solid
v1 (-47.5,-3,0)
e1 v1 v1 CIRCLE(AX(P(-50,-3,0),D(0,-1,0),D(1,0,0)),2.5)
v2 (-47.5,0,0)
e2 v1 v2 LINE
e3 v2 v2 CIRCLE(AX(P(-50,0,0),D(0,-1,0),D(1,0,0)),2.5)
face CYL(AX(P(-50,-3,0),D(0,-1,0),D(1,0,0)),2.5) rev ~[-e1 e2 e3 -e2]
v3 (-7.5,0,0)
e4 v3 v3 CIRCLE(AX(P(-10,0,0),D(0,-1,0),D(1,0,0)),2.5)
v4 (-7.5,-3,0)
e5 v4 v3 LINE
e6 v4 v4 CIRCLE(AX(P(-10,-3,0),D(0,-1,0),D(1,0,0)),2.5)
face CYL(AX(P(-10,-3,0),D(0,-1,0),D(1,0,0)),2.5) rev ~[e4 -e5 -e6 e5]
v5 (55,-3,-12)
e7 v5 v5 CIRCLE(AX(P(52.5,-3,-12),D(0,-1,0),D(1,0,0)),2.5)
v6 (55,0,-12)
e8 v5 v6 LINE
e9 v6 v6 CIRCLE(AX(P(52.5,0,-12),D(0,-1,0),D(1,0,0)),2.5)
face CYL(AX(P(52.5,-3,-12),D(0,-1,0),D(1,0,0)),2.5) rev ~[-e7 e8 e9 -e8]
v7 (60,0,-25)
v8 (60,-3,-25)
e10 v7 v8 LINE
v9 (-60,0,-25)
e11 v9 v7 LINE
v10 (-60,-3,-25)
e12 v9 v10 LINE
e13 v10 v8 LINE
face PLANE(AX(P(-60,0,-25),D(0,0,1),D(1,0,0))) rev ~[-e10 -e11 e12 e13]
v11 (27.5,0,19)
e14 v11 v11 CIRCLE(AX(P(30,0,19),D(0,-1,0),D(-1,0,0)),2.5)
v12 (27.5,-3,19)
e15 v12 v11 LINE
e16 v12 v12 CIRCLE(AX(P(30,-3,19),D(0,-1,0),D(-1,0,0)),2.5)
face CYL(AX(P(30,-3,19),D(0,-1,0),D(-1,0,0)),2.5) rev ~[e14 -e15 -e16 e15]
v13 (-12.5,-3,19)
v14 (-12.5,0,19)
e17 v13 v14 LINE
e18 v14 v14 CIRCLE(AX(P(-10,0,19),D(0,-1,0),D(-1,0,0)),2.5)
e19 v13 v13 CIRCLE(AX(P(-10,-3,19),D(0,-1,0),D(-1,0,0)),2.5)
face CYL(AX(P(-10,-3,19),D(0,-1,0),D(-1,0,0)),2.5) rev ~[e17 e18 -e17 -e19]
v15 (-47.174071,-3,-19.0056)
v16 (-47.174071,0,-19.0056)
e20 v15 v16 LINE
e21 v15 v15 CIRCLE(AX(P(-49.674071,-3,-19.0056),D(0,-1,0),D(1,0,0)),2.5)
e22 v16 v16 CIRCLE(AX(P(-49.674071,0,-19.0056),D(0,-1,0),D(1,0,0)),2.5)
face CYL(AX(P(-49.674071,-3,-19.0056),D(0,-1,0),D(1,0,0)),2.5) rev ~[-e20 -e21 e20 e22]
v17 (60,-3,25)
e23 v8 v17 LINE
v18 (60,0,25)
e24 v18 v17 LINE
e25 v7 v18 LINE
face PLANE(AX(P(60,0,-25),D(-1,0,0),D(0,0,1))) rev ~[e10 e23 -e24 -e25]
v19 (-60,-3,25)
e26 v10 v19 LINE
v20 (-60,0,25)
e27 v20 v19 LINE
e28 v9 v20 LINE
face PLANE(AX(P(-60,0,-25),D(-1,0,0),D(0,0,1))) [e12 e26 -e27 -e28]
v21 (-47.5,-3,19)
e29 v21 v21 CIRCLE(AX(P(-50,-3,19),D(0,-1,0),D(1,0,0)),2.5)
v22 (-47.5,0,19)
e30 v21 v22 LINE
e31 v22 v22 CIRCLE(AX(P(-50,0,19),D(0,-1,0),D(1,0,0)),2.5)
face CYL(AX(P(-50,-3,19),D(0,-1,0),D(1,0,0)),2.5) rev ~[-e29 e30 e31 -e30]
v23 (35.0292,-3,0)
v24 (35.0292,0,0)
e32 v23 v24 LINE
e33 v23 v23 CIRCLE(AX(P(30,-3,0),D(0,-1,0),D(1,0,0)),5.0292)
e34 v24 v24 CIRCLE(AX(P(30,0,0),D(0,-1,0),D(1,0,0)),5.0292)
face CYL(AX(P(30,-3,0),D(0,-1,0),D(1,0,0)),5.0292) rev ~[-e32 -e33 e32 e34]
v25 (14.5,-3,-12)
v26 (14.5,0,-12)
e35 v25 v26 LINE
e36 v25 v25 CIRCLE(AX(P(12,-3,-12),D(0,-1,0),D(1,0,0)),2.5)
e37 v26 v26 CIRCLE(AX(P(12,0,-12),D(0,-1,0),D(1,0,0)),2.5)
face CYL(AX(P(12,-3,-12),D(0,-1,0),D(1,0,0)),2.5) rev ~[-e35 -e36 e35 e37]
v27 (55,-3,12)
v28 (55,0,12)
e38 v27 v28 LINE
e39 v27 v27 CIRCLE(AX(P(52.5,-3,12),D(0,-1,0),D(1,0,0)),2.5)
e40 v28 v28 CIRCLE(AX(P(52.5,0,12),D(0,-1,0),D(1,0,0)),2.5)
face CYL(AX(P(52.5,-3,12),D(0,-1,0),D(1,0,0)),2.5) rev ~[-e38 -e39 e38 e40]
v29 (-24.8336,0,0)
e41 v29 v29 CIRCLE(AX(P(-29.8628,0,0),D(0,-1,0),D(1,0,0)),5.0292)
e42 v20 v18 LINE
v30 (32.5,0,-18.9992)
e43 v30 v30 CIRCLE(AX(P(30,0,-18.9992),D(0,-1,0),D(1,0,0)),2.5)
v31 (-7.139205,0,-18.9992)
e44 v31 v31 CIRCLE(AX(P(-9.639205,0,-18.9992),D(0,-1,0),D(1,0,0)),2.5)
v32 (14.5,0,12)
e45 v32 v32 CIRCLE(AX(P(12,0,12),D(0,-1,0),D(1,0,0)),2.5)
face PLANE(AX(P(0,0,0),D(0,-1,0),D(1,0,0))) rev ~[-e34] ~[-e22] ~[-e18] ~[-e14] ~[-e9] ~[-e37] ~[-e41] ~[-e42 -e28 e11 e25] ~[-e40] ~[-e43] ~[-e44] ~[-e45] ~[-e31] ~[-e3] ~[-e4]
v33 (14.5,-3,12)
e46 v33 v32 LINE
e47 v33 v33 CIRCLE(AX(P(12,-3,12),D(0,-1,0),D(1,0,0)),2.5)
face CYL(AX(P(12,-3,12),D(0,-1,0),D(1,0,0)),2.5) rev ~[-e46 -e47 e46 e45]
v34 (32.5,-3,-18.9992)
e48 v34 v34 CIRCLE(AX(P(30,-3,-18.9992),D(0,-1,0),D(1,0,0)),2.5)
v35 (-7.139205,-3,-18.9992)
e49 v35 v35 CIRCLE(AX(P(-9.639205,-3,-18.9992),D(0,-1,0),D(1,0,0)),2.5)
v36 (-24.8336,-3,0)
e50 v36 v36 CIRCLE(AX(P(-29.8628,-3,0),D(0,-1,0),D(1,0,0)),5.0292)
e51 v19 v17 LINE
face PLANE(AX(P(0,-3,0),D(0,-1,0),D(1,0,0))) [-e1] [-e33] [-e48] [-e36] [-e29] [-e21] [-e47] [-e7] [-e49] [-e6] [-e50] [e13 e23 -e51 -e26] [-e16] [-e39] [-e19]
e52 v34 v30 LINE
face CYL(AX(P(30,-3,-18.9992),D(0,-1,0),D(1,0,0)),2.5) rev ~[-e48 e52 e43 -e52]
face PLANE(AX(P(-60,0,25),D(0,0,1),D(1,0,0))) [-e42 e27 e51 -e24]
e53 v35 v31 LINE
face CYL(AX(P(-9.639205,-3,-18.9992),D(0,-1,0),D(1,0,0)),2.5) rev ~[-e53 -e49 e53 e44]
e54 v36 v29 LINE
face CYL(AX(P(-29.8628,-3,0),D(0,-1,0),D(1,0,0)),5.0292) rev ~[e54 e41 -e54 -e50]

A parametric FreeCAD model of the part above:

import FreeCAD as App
import Part
import Sketcher

V = App.Vector


def add_polygon(sketch, points):
    """Adds a closed chain of lines whose ends are joined by coincident constraints."""
    first, n = sketch.GeometryCount, len(points)
    for a, b in zip(points, points[1:] + points[:1]):
        sketch.addGeometry(Part.LineSegment(App.Vector(*a, 0), App.Vector(*b, 0)), False)
    for i in range(n):
        sketch.addConstraint(Sketcher.Constraint("Coincident", first + i, 2, first + (i + 1) % n, 1))

doc = App.newDocument("Part")
params = doc.addObject("Spreadsheet::Sheet", "Params")
for row, (alias, value) in enumerate([
    ("sketch1_width", "120 mm"),
    ("sketch1_height", "50 mm"),
    ("pad1_length", "3 mm"),
    ("sketch2_diameter", "5 mm"),
], start=1):
    params.set(f"A{row}", alias)
    params.set(f"B{row}", "=" + value)
    params.setAlias(f"B{row}", alias)

body = doc.addObject("PartDesign::Body", "Body")

sketch1 = body.newObject("Sketcher::SketchObject", "Sketch")
sketch1.AttachmentSupport = (doc.getObject("XZ_Plane"), [""])
sketch1.MapMode = "FlatFace"
add_polygon(sketch1, [(-60, 25), (-60, -25), (60, -25), (60, 25)])
sketch1.addConstraint([
    Sketcher.Constraint("Vertical", 0),
    Sketcher.Constraint("Horizontal", 1),
    Sketcher.Constraint("Vertical", 2),
    Sketcher.Constraint("Horizontal", 3),
    Sketcher.Constraint("Symmetric", 0, 2, 2, 2, -1, 1),
    Sketcher.Constraint("DistanceX", 1, 1, 1, 2, 120.0),
    Sketcher.Constraint("DistanceY", 0, 2, 0, 1, 50.0),
])
sketch1.setExpression("Constraints[9]", "Params.sketch1_width")
sketch1.setExpression("Constraints[10]", "Params.sketch1_height")
pad1 = body.newObject("PartDesign::Pad", "Pad")
pad1.Profile = sketch1
pad1.setExpression("Length", "Params.pad1_length")

sketch2 = body.newObject("Sketcher::SketchObject", "Sketch001")
sketch2.AttachmentSupport = (doc.getObject("XZ_Plane"), [""])
sketch2.MapMode = "FlatFace"
sketch2.AttachmentOffset = App.Placement(V(0, 0, 3), App.Rotation())
sketch2.addGeometry([
    Part.Circle(V(-50, 0, 0), V(0, 0, 1), 2.5),
    Part.Circle(V(-49.7, -19, 0), V(0, 0, 1), 2.5),
    Part.Circle(V(-29.9, 0, 0), V(0, 0, 1), 5),
    Part.Circle(V(-10, 0, 0), V(0, 0, 1), 2.5),
    Part.Circle(V(-9.6, -19, 0), V(0, 0, 1), 2.5),
    Part.Circle(V(12, 12, 0), V(0, 0, 1), 2.5),
    Part.Circle(V(12, -12, 0), V(0, 0, 1), 2.5),
    Part.Circle(V(30, 0, 0), V(0, 0, 1), 5),
    Part.Circle(V(30, -19, 0), V(0, 0, 1), 2.5),
    Part.Circle(V(52.5, 12, 0), V(0, 0, 1), 2.5),
    Part.Circle(V(52.5, -12, 0), V(0, 0, 1), 2.5),
    Part.Circle(V(-10, 19, 0), V(0, 0, 1), 2.5),
    Part.Circle(V(30, 19, 0), V(0, 0, 1), 2.5),
    Part.Circle(V(-50, 19, 0), V(0, 0, 1), 2.5),
], False)
sketch2.addConstraint([
    Sketcher.Constraint("Equal", 0, 1),
    Sketcher.Constraint("Equal", 1, 3),
    Sketcher.Constraint("Equal", 3, 4),
    Sketcher.Constraint("Equal", 4, 5),
    Sketcher.Constraint("Equal", 5, 6),
    Sketcher.Constraint("Equal", 2, 7),
    Sketcher.Constraint("Equal", 6, 8),
    Sketcher.Constraint("Equal", 8, 9),
    Sketcher.Constraint("Equal", 9, 10),
    Sketcher.Constraint("Equal", 10, 11),
    Sketcher.Constraint("Equal", 11, 12),
    Sketcher.Constraint("Equal", 12, 13),
    Sketcher.Constraint("Symmetric", 5, 3, 6, 3, -1),
    Sketcher.Constraint("Symmetric", 9, 3, 10, 3, -1),
    Sketcher.Constraint("PointOnObject", 0, 3, -1),
    Sketcher.Constraint("PointOnObject", 2, 3, -1),
    Sketcher.Constraint("PointOnObject", 3, 3, -1),
    Sketcher.Constraint("PointOnObject", 7, 3, -1),
    Sketcher.Constraint("Horizontal", 4, 3, 8, 3),
    Sketcher.Constraint("Horizontal", 5, 3, 9, 3),
    Sketcher.Constraint("Horizontal", 11, 3, 12, 3),
    Sketcher.Constraint("Horizontal", 12, 3, 13, 3),
    Sketcher.Constraint("Vertical", 7, 3, 8, 3),
    Sketcher.Constraint("Vertical", 3, 3, 11, 3),
    Sketcher.Constraint("Vertical", 8, 3, 12, 3),
    Sketcher.Constraint("Vertical", 0, 3, 13, 3),
    Sketcher.Constraint("Diameter", 0, 5.0),
    Sketcher.Constraint("DistanceX", 0, 3, -1, 1, 50.0),
    Sketcher.Constraint("DistanceX", 3, 3, -1, 1, 10.0),
    Sketcher.Constraint("DistanceX", -1, 1, 5, 3, 12.0),
    Sketcher.Constraint("DistanceY", -1, 1, 5, 3, 12.0),
    Sketcher.Constraint("DistanceX", -1, 1, 7, 3, 30.0),
    Sketcher.Constraint("DistanceY", -1, 1, 11, 3, 19.0),
    Sketcher.Constraint("Diameter", 2, 10.0584),
    Sketcher.Constraint("DistanceX", -1, 1, 9, 3, 52.5),
    Sketcher.Constraint("DistanceY", 1, 3, -1, 1, 19.0056),
    Sketcher.Constraint("DistanceX", 2, 3, -1, 1, 29.8628),
    Sketcher.Constraint("DistanceY", 4, 3, -1, 1, 18.9992),
    Sketcher.Constraint("DistanceX", 1, 3, -1, 1, 49.674071),
    Sketcher.Constraint("DistanceX", 4, 3, -1, 1, 9.639205),
])
sketch2.setExpression("Constraints[26]", "Params.sketch2_diameter")
pocket1 = body.newObject("PartDesign::Pocket", "Pocket")
pocket1.Profile = sketch2
pocket1.Type = "ThroughAll"

doc.recompute()
